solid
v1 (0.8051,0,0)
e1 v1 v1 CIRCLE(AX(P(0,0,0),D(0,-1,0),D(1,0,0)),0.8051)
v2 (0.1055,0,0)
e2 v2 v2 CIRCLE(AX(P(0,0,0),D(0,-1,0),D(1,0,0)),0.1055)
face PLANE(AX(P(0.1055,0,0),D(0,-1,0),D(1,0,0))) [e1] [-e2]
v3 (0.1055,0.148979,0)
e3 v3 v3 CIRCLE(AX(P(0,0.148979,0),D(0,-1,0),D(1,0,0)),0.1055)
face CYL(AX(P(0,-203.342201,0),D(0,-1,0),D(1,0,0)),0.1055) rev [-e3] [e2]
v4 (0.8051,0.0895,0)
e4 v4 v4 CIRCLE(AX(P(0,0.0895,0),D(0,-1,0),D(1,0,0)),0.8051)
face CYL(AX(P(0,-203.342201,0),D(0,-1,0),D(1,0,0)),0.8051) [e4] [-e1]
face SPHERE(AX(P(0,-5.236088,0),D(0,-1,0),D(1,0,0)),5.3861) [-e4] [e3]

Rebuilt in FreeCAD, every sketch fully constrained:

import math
import FreeCAD as App
import Part
import Sketcher

doc = App.newDocument("Part")
params = doc.addObject("Spreadsheet::Sheet", "Params")
for row, (alias, value) in enumerate([
    ("revolution_angle", "360 deg"),
], start=1):
    params.set(f"A{row}", alias)
    params.set(f"B{row}", "=" + value)
    params.setAlias(f"B{row}", alias)

body = doc.addObject("PartDesign::Body", "Body")

# Sketch on XY plane
sketch1 = body.newObject("Sketcher::SketchObject", "Sketch")
sketch1.AttachmentSupport = (doc.getObject("XY_Plane"), [""])
sketch1.MapMode = "FlatFace"
sketch1.addGeometry(Part.LineSegment(App.Vector(0.11, 0.15, 0), App.Vector(0.11, 0, 0)), False)
sketch1.addGeometry(Part.LineSegment(App.Vector(0.11, 0, 0), App.Vector(0.81, 0, 0)), False)
sketch1.addGeometry(Part.LineSegment(App.Vector(0.81, 0, 0), App.Vector(0.81, 0.09, 0)), False)
sketch1.addGeometry(Part.ArcOfCircle(Part.Circle(App.Vector(0, -5.24, 0), App.Vector(0, 0, 1), 5.39), math.radians(81.4), math.radians(88.88)), False)
sketch1.addConstraint(Sketcher.Constraint("Coincident", 0, 2, 1, 1))
sketch1.addConstraint(Sketcher.Constraint("Coincident", 1, 2, 2, 1))
sketch1.addConstraint(Sketcher.Constraint("Coincident", 2, 2, 3, 1))
sketch1.addConstraint(Sketcher.Constraint("Coincident", 3, 2, 0, 1))
sketch1.addConstraint(Sketcher.Constraint("Vertical", 0))
sketch1.addConstraint(Sketcher.Constraint("Horizontal", 1))
sketch1.addConstraint(Sketcher.Constraint("Vertical", 2))
sketch1.addConstraint(Sketcher.Constraint("PointOnObject", 3, 3, -2))
sketch1.addConstraint(Sketcher.Constraint("PointOnObject", 0, 2, -1))
sketch1.addConstraint(Sketcher.Constraint("Radius", 3, 5.3861))
sketch1.addConstraint(Sketcher.Constraint("DistanceX", 1, 1, 1, 2, 0.6996))
sketch1.addConstraint(Sketcher.Constraint("DistanceY", 2, 1, 2, 2, 0.0895))
sketch1.addConstraint(Sketcher.Constraint("DistanceY", 0, 2, 0, 1, 0.148979))
revolution = body.newObject("PartDesign::Revolution", "Revolution")
revolution.Profile = sketch1
revolution.ReferenceAxis = (sketch1, ["V_Axis"])
revolution.setExpression("Angle", "Params.revolution_angle")

doc.recompute()
